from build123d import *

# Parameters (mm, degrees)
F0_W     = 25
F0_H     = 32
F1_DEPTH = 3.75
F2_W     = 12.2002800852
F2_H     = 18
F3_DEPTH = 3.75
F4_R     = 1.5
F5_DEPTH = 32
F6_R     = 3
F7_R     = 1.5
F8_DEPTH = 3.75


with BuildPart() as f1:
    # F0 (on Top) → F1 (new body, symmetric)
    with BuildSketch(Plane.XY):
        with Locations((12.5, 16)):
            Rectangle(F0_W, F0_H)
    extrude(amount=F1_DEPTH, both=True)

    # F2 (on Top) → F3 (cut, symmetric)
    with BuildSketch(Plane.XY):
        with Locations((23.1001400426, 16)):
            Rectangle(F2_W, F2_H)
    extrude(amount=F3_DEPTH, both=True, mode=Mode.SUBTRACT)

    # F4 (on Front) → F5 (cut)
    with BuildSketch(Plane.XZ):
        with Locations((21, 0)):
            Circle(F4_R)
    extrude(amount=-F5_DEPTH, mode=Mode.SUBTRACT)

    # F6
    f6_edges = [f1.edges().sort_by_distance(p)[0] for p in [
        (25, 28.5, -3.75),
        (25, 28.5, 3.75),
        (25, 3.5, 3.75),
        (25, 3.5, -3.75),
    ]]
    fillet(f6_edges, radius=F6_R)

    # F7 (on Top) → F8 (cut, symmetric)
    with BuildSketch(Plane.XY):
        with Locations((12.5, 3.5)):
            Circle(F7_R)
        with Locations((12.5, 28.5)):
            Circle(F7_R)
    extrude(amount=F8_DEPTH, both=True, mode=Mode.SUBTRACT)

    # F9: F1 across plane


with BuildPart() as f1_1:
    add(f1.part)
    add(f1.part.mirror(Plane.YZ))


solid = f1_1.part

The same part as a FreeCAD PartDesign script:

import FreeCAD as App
import Part
import Sketcher
from FreeCAD import Vector


def edges_at(feature, points):
    """Names of the edges that pass closest to the given points."""
    edges = feature.Shape.Edges
    near = lambda p: min(range(len(edges)), key=lambda i: edges[i].distToShape(Part.Vertex(*p))[0])
    return sorted({f"Edge{near(p) + 1}" for p in points})

doc = App.newDocument("Part")
params = doc.addObject("Spreadsheet::Sheet", "Params")
for row, (alias, value) in enumerate([
    ("sketch1_width", "25 mm"),
    ("sketch1_height", "32 mm"),
    ("pad1_length", "7.5 mm"),
    ("sketch2_height", "18 mm"),
    ("pocket1_length", "7.5 mm"),
    ("sketch3_diameter", "3 mm"),
    ("pocket2_length", "32 mm"),
    ("fillet_radius", "3 mm"),
    ("sketch4_diameter", "3 mm"),
    ("pocket3_length", "7.5 mm"),
], start=1):
    params.set(f"A{row}", alias)
    params.set(f"B{row}", "=" + value)
    params.setAlias(f"B{row}", alias)

body = doc.addObject("PartDesign::Body", "Body")

# Sketch on XY plane
sketch1 = body.newObject("Sketcher::SketchObject", "Sketch")
sketch1.AttachmentSupport = (doc.getObject("XY_Plane"), [""])
sketch1.MapMode = "FlatFace"
sketch1.addGeometry([
    Part.LineSegment(Vector(0, 32, 0), Vector(0, 0, 0)),
    Part.LineSegment(Vector(0, 0, 0), Vector(25, 0, 0)),
    Part.LineSegment(Vector(25, 0, 0), Vector(25, 32, 0)),
    Part.LineSegment(Vector(25, 32, 0), Vector(0, 32, 0)),
], False)
sketch1.addConstraint([
    Sketcher.Constraint("Coincident", 0, 2, 1, 1),
    Sketcher.Constraint("Coincident", 1, 2, 2, 1),
    Sketcher.Constraint("Coincident", 2, 2, 3, 1),
    Sketcher.Constraint("Coincident", 3, 2, 0, 1),
    Sketcher.Constraint("Vertical", 0),
    Sketcher.Constraint("Horizontal", 1),
    Sketcher.Constraint("Vertical", 2),
    Sketcher.Constraint("Horizontal", 3),
    Sketcher.Constraint("Coincident", 0, 2, -1, 1),
    Sketcher.Constraint("DistanceX", 1, 1, 1, 2, 25.0),
    Sketcher.Constraint("DistanceY", 0, 2, 0, 1, 32.0),
])
sketch1.setExpression("Constraints[9]", "Params.sketch1_width")
sketch1.setExpression("Constraints[10]", "Params.sketch1_height")
pad1 = body.newObject("PartDesign::Pad", "Pad")
pad1.Profile = sketch1
pad1.setExpression("Length", "Params.pad1_length")
pad1.Midplane = True

# Sketch on XY plane
sketch2 = body.newObject("Sketcher::SketchObject", "Sketch001")
sketch2.AttachmentSupport = (doc.getObject("XY_Plane"), [""])
sketch2.MapMode = "FlatFace"
sketch2.addGeometry([
    Part.LineSegment(Vector(17, 25, 0), Vector(17, 7, 0)),
    Part.LineSegment(Vector(17, 7, 0), Vector(29, 7, 0)),
    Part.LineSegment(Vector(29, 7, 0), Vector(29, 25, 0)),
    Part.LineSegment(Vector(29, 25, 0), Vector(17, 25, 0)),
], False)
sketch2.addConstraint([
    Sketcher.Constraint("Coincident", 0, 2, 1, 1),
    Sketcher.Constraint("Coincident", 1, 2, 2, 1),
    Sketcher.Constraint("Coincident", 2, 2, 3, 1),
    Sketcher.Constraint("Coincident", 3, 2, 0, 1),
    Sketcher.Constraint("Vertical", 0),
    Sketcher.Constraint("Horizontal", 1),
    Sketcher.Constraint("Vertical", 2),
    Sketcher.Constraint("Horizontal", 3),
    Sketcher.Constraint("DistanceY", 0, 2, 0, 1, 18.0),
    Sketcher.Constraint("DistanceX", -1, 1, 0, 2, 17.0),
    Sketcher.Constraint("DistanceY", -1, 1, 0, 2, 7.0),
    Sketcher.Constraint("DistanceX", 1, 1, 1, 2, 12.20028),
])
sketch2.setExpression("Constraints[8]", "Params.sketch2_height")
pocket1 = body.newObject("PartDesign::Pocket", "Pocket")
pocket1.Profile = sketch2
pocket1.setExpression("Length", "Params.pocket1_length")
pocket1.Midplane = True

# Sketch on XZ plane
sketch3 = body.newObject("Sketcher::SketchObject", "Sketch002")
sketch3.AttachmentSupport = (doc.getObject("XZ_Plane"), [""])
sketch3.MapMode = "FlatFace"
sketch3.addGeometry(Part.Circle(Vector(21, 0, 0), Vector(0, 0, 1), 1.5), False)
sketch3.addConstraint([
    Sketcher.Constraint("PointOnObject", 0, 3, -1),
    Sketcher.Constraint("Diameter", 0, 3.0),
    Sketcher.Constraint("DistanceX", -1, 1, 0, 3, 21.0),
])
sketch3.setExpression("Constraints[1]", "Params.sketch3_diameter")
pocket2 = body.newObject("PartDesign::Pocket", "Pocket001")
pocket2.Profile = sketch3
pocket2.setExpression("Length", "Params.pocket2_length")
doc.recompute()

fillet = body.newObject("PartDesign::Fillet", "Fillet")
fillet.Base = (pocket2, edges_at(pocket2, [
    (25, 28.5, -3.75),
    (25, 28.5, 3.75),
    (25, 3.5, 3.75),
    (25, 3.5, -3.75),
]))
fillet.setExpression("Radius", "Params.fillet_radius")

# Sketch on XY plane
sketch4 = body.newObject("Sketcher::SketchObject", "Sketch003")
sketch4.AttachmentSupport = (doc.getObject("XY_Plane"), [""])
sketch4.MapMode = "FlatFace"
sketch4.addGeometry([
    Part.Circle(Vector(12.5, 3.5, 0), Vector(0, 0, 1), 1.5),
    Part.Circle(Vector(12.5, 28.5, 0), Vector(0, 0, 1), 1.5),
], False)
sketch4.addConstraint([
    Sketcher.Constraint("Equal", 0, 1),
    Sketcher.Constraint("Vertical", 0, 3, 1, 3),
    Sketcher.Constraint("Diameter", 0, 3.0),
    Sketcher.Constraint("DistanceY", 0, 3, 1, 3, 25.0),
    Sketcher.Constraint("DistanceX", -1, 1, 0, 3, 12.5),
    Sketcher.Constraint("DistanceY", -1, 1, 0, 3, 3.5),
])
sketch4.setExpression("Constraints[2]", "Params.sketch4_diameter")
pocket3 = body.newObject("PartDesign::Pocket", "Pocket002")
pocket3.Profile = sketch4
pocket3.setExpression("Length", "Params.pocket3_length")
pocket3.Midplane = True
body2 = doc.addObject("PartDesign::Body", "Body001")
doc.recompute()

body2.BaseFeature = body
doc.recompute()

mirroring = doc.addObject("Part::Mirroring", "Mirroring")
mirroring.Source = body
mirroring.Base = Vector(0, 0, 0)
mirroring.Normal = Vector(1, 0, 0)
body3 = doc.addObject("PartDesign::Body", "Body002")
body3.BaseFeature = mirroring
boolean = body2.newObject("PartDesign::Boolean", "Boolean")
boolean.Type = "Fuse"
boolean.addObjects([body3])
doc.recompute()
mirroring.Visibility = False

doc.recompute()
